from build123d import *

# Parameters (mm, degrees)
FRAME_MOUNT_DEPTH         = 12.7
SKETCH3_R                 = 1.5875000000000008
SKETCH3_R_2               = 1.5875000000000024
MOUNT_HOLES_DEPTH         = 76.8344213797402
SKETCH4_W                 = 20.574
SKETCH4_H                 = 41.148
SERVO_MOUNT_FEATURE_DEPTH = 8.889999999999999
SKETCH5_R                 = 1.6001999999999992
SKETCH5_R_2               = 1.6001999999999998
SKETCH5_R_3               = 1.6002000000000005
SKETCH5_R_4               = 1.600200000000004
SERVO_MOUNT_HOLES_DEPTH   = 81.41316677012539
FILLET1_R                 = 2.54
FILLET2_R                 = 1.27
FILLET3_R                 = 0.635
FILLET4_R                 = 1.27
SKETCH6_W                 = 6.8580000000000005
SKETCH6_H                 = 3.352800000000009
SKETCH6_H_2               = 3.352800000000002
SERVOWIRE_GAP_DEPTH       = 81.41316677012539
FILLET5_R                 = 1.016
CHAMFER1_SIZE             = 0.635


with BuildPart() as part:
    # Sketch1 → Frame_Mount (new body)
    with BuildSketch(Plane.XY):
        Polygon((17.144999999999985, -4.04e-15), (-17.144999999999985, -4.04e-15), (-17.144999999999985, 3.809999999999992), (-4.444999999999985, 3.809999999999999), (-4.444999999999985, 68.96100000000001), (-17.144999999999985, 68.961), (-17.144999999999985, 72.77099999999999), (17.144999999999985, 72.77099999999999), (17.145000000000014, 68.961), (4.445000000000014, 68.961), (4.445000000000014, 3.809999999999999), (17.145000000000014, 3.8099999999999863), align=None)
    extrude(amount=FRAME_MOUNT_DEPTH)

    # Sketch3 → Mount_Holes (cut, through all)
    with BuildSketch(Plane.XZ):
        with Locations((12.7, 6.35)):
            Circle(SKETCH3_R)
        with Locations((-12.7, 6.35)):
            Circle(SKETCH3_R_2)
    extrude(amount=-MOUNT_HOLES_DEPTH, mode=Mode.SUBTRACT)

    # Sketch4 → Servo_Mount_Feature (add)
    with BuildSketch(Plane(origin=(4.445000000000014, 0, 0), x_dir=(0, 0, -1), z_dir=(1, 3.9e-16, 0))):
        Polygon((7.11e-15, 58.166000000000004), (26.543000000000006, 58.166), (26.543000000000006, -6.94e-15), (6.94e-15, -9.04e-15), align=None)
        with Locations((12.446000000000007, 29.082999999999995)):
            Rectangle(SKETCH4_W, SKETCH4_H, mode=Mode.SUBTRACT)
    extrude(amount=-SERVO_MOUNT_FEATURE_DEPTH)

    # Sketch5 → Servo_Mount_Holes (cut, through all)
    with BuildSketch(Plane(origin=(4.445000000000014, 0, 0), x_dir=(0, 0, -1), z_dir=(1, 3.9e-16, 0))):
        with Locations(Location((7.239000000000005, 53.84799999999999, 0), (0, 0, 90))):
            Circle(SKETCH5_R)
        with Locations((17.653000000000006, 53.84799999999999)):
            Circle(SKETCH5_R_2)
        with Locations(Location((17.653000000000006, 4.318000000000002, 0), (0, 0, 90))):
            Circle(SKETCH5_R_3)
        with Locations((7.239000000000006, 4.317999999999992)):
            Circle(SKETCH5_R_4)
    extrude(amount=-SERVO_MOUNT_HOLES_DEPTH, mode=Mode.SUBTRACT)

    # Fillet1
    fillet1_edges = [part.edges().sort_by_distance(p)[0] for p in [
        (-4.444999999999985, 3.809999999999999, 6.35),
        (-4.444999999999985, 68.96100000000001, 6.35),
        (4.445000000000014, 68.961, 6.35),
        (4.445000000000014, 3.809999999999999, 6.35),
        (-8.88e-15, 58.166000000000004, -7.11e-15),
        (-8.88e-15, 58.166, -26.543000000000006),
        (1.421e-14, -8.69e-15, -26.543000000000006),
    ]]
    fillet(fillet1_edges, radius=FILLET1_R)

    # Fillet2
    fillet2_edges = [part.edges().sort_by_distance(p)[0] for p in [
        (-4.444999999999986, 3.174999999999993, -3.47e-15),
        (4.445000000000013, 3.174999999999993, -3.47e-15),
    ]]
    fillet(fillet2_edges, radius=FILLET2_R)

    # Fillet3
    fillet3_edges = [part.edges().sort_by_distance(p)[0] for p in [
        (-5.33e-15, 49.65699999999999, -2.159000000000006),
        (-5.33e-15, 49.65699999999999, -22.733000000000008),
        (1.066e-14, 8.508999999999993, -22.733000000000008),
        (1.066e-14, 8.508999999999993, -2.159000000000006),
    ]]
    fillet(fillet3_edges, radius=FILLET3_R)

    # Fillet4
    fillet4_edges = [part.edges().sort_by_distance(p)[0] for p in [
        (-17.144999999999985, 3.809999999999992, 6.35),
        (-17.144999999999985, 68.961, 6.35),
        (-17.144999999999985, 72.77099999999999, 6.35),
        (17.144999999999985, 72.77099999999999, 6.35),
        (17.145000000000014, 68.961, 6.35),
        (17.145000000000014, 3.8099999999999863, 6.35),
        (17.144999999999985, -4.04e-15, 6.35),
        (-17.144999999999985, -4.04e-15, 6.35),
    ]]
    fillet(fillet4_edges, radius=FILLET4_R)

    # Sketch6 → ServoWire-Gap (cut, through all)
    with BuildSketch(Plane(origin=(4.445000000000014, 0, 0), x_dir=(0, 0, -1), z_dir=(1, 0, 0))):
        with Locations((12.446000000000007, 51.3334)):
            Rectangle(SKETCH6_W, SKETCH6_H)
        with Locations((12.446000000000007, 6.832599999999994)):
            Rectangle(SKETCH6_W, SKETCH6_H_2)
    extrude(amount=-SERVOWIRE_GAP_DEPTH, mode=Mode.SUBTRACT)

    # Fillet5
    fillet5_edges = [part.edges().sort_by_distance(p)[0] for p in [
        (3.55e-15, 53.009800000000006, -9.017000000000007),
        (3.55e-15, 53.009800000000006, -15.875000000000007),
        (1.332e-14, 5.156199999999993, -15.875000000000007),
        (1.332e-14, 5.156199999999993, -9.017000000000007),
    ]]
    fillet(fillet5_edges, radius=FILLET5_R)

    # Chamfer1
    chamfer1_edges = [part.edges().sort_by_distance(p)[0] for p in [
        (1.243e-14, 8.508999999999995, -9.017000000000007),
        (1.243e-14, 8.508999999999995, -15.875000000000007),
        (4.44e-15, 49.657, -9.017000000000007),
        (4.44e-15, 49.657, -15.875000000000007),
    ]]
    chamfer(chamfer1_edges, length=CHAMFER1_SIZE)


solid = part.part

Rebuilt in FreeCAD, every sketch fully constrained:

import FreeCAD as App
import Part
import Sketcher

V = App.Vector
Q = App.Units.Quantity


def edges_at(feature, points):
    """Names of the edges that pass closest to the given points."""
    edges = feature.Shape.Edges
    near = lambda p: min(range(len(edges)), key=lambda i: edges[i].distToShape(Part.Vertex(*p))[0])
    return sorted({f"Edge{near(p) + 1}" for p in points})

doc = App.newDocument("Part")
body = doc.addObject("PartDesign::Body", "Body")

# Sketch on XY plane
sketch1 = doc.addObject("Sketcher::SketchObject", "Sketch")
body.addObject(sketch1)
sketch1.AttachmentSupport = (doc.XY_Plane, [""])
sketch1.MapMode = "FlatFace"
sketch1.addGeometry([
    Part.LineSegment(V(-17.145, 0, 0), V(17.145, 0, 0)),  # 0
    Part.LineSegment(V(17.145, 0, 0), V(17.145, 3.81, 0)),  # 1
    Part.LineSegment(V(17.145, 3.81, 0), V(4.445, 3.81, 0)),  # 2
    Part.LineSegment(V(4.445, 3.81, 0), V(4.445, 68.961, 0)),  # 3
    Part.LineSegment(V(4.445, 68.961, 0), V(17.145, 68.961, 0)),  # 4
    Part.LineSegment(V(17.145, 68.961, 0), V(17.145, 72.771, 0)),  # 5
    Part.LineSegment(V(17.145, 72.771, 0), V(-17.145, 72.771, 0)),  # 6
    Part.LineSegment(V(-17.145, 72.771, 0), V(-17.145, 68.961, 0)),  # 7
    Part.LineSegment(V(-17.145, 68.961, 0), V(-4.445, 68.961, 0)),  # 8
    Part.LineSegment(V(-4.445, 68.961, 0), V(-4.445, 3.81, 0)),  # 9
    Part.LineSegment(V(-4.445, 3.81, 0), V(-17.145, 3.81, 0)),  # 10
    Part.LineSegment(V(-17.145, 3.81, 0), V(-17.145, 0, 0)),  # 11
], False)
sketch1.addConstraint([
    Sketcher.Constraint("Coincident", 0, 2, 1, 1),
    Sketcher.Constraint("Coincident", 1, 2, 2, 1),
    Sketcher.Constraint("Coincident", 2, 2, 3, 1),
    Sketcher.Constraint("Coincident", 3, 2, 4, 1),
    Sketcher.Constraint("Coincident", 4, 2, 5, 1),
    Sketcher.Constraint("Coincident", 5, 2, 6, 1),
    Sketcher.Constraint("Coincident", 6, 2, 7, 1),
    Sketcher.Constraint("Coincident", 7, 2, 8, 1),
    Sketcher.Constraint("Coincident", 8, 2, 9, 1),
    Sketcher.Constraint("Coincident", 9, 2, 10, 1),
    Sketcher.Constraint("Coincident", 10, 2, 11, 1),
    Sketcher.Constraint("Coincident", 11, 2, 0, 1),
    Sketcher.Constraint("Horizontal", 0),
    Sketcher.Constraint("Vertical", 1),
    Sketcher.Constraint("Horizontal", 2),
    Sketcher.Constraint("Vertical", 3),
    Sketcher.Constraint("Horizontal", 4),
    Sketcher.Constraint("Vertical", 5),
    Sketcher.Constraint("Horizontal", 6),
    Sketcher.Constraint("Vertical", 7),
    Sketcher.Constraint("Horizontal", 8),
    Sketcher.Constraint("Vertical", 9),
    Sketcher.Constraint("Horizontal", 10),
    Sketcher.Constraint("Vertical", 11),
    Sketcher.Constraint("Symmetric", 0, 2, 11, 2, -1, 1),
    Sketcher.Constraint("Symmetric", 4, 2, 7, 2, -2),
    Sketcher.Constraint("Symmetric", 2, 2, 9, 2, -2),
    Sketcher.Constraint("Vertical", 1, 2, 4, 2),
    Sketcher.Constraint("Equal", 1, 5),
    Sketcher.Constraint("DistanceX", 2, 2, 2, 1, Q("0.5 in")),
    Sketcher.Constraint("DistanceX", 0, 1, 0, 2, Q("1.35 in")),
    Sketcher.Constraint("DistanceY", 1, 1, 1, 2, Q("0.15 in")),
    Sketcher.Constraint("DistanceY", 3, 1, 3, 2, Q("2.565 in")),
])
pad1 = doc.addObject("PartDesign::Pad", "Pad")
body.addObject(pad1)
pad1.Profile = sketch1
pad1.Length = Q("0.5 in")

# Sketch on XZ plane
sketch2 = doc.addObject("Sketcher::SketchObject", "Sketch001")
body.addObject(sketch2)
sketch2.AttachmentSupport = (doc.XZ_Plane, [""])
sketch2.MapMode = "FlatFace"
sketch2.addGeometry([
    Part.Circle(V(12.7, 6.35, 0), V(0, 0, 1), 1.5875),
    Part.Circle(V(-12.7, 6.35, 0), V(0, 0, 1), 1.5875),
], False)
sketch2.addConstraint([
    Sketcher.Constraint("Equal", 0, 1),
    Sketcher.Constraint("Symmetric", 0, 3, 1, 3, -2),
    Sketcher.Constraint("Diameter", 0, Q("0.125 in")),
    Sketcher.Constraint("DistanceX", 1, 3, 0, 3, Q("1 in")),
    Sketcher.Constraint("DistanceY", -1, 1, 0, 3, Q("0.25 in")),
])
pocket1 = doc.addObject("PartDesign::Pocket", "Pocket")
body.addObject(pocket1)
pocket1.Profile = sketch2
pocket1.Type = "ThroughAll"

# Sketch on YZ plane
sketch3 = doc.addObject("Sketcher::SketchObject", "Sketch002")
body.addObject(sketch3)
sketch3.AttachmentSupport = (doc.YZ_Plane, [""])
sketch3.MapMode = "FlatFace"
sketch3.AttachmentOffset = App.Placement(V(0, 0, 0.175 * 25.4), App.Rotation())
sketch3.addGeometry([
    Part.LineSegment(V(58.166, -26.543, 0), V(58.166, 0, 0)),  # 0
    Part.LineSegment(V(58.166, 0, 0), V(0, 0, 0)),  # 1
    Part.LineSegment(V(0, 0, 0), V(0, -26.543, 0)),  # 2
    Part.LineSegment(V(0, -26.543, 0), V(58.166, -26.543, 0)),  # 3
    Part.LineSegment(V(8.509, -2.159, 0), V(49.657, -2.159, 0)),  # 4
    Part.LineSegment(V(49.657, -2.159, 0), V(49.657, -22.733, 0)),  # 5
    Part.LineSegment(V(49.657, -22.733, 0), V(8.509, -22.733, 0)),  # 6
    Part.LineSegment(V(8.509, -22.733, 0), V(8.509, -2.159, 0)),  # 7
], False)
sketch3.addConstraint([
    Sketcher.Constraint("Coincident", 0, 2, 1, 1),
    Sketcher.Constraint("Coincident", 1, 2, 2, 1),
    Sketcher.Constraint("Coincident", 2, 2, 3, 1),
    Sketcher.Constraint("Coincident", 3, 2, 0, 1),
    Sketcher.Constraint("Coincident", 4, 2, 5, 1),
    Sketcher.Constraint("Coincident", 5, 2, 6, 1),
    Sketcher.Constraint("Coincident", 6, 2, 7, 1),
    Sketcher.Constraint("Coincident", 7, 2, 4, 1),
    Sketcher.Constraint("Vertical", 0),
    Sketcher.Constraint("Horizontal", 1),
    Sketcher.Constraint("Vertical", 2),
    Sketcher.Constraint("Horizontal", 3),
    Sketcher.Constraint("Horizontal", 4),
    Sketcher.Constraint("Vertical", 5),
    Sketcher.Constraint("Horizontal", 6),
    Sketcher.Constraint("Vertical", 7),
    Sketcher.Constraint("Coincident", 1, 2, -1, 1),
    Sketcher.Constraint("DistanceX", 1, 2, 1, 1, Q("2.29 in")),
    Sketcher.Constraint("DistanceX", 4, 1, 4, 2, Q("1.62 in")),
    Sketcher.Constraint("DistanceY", 5, 2, 5, 1, Q("0.81 in")),
    Sketcher.Constraint("DistanceY", 0, 1, 0, 2, Q("1.045 in")),
    Sketcher.Constraint("DistanceY", 3, 2, 4, 2, Q("0.96 in")),
    Sketcher.Constraint("DistanceX", -1, 1, 4, 2, Q("1.955 in")),
])
pad2 = doc.addObject("PartDesign::Pad", "Pad001")
body.addObject(pad2)
pad2.Profile = sketch3
pad2.Length = Q("0.35 in")
pad2.Reversed = True

# Sketch on YZ plane
sketch4 = doc.addObject("Sketcher::SketchObject", "Sketch003")
body.addObject(sketch4)
sketch4.AttachmentSupport = (doc.YZ_Plane, [""])
sketch4.MapMode = "FlatFace"
sketch4.AttachmentOffset = App.Placement(V(0, 0, 0.175 * 25.4), App.Rotation())
sketch4.addGeometry([
    Part.Circle(V(53.848, -7.239, 0), V(0, 0, 1), 1.6002),
    Part.Circle(V(53.848, -17.653, 0), V(0, 0, 1), 1.6002),
    Part.Circle(V(4.318, -17.653, 0), V(0, 0, 1), 1.6002),
    Part.Circle(V(4.318, -7.239, 0), V(0, 0, 1), 1.6002),
], False)
sketch4.addConstraint([
    Sketcher.Constraint("Equal", 0, 1),
    Sketcher.Constraint("Equal", 1, 2),
    Sketcher.Constraint("Equal", 2, 3),
    Sketcher.Constraint("Horizontal", 1, 3, 2, 3),
    Sketcher.Constraint("Horizontal", 0, 3, 3, 3),
    Sketcher.Constraint("Vertical", 0, 3, 1, 3),
    Sketcher.Constraint("Vertical", 2, 3, 3, 3),
    Sketcher.Constraint("Diameter", 0, Q("0.126 in")),
    Sketcher.Constraint("DistanceX", -1, 1, 0, 3, Q("2.12 in")),
    Sketcher.Constraint("DistanceX", -1, 1, 2, 3, Q("0.17 in")),
    Sketcher.Constraint("DistanceY", 1, 3, 0, 3, Q("0.41 in")),
    Sketcher.Constraint("DistanceY", 0, 3, -1, 1, Q("0.285 in")),
])
pocket2 = doc.addObject("PartDesign::Pocket", "Pocket001")
body.addObject(pocket2)
pocket2.Profile = sketch4
pocket2.Type = "ThroughAll"
doc.recompute()

fillet = doc.addObject("PartDesign::Fillet", "Fillet")
body.addObject(fillet)
fillet.Base = (pocket2, edges_at(pocket2, [
    (-4.445, 3.81, 6.35),
    (-4.445, 68.961, 6.35),
    (4.445, 68.961, 6.35),
    (4.445, 3.81, 6.35),
    (0, 58.166, 0),
    (0, 58.166, -26.543),
    (0, 0, -26.543),
]))
fillet.Radius = Q("0.1 in")
doc.recompute()

fillet2 = doc.addObject("PartDesign::Fillet", "Fillet001")
body.addObject(fillet2)
fillet2.Base = (fillet, edges_at(fillet, [(-4.445, 3.175, 0), (4.445, 3.175, 0)]))
fillet2.Radius = Q("0.05 in")
doc.recompute()

fillet3 = doc.addObject("PartDesign::Fillet", "Fillet002")
body.addObject(fillet3)
fillet3.Base = (fillet2, edges_at(fillet2, [
    (0, 49.657, -2.159),
    (0, 49.657, -22.733),
    (0, 8.509, -22.733),
    (0, 8.509, -2.159),
]))
fillet3.Radius = Q("0.025 in")
doc.recompute()

fillet4 = doc.addObject("PartDesign::Fillet", "Fillet003")
body.addObject(fillet4)
fillet4.Base = (fillet3, edges_at(fillet3, [
    (-17.145, 3.81, 6.35),
    (-17.145, 68.961, 6.35),
    (-17.145, 72.771, 6.35),
    (17.145, 72.771, 6.35),
    (17.145, 68.961, 6.35),
    (17.145, 3.81, 6.35),
    (17.145, 0, 6.35),
    (-17.145, 0, 6.35),
]))
fillet4.Radius = Q("0.05 in")

# Sketch on YZ plane
sketch5 = doc.addObject("Sketcher::SketchObject", "Sketch004")
body.addObject(sketch5)
sketch5.AttachmentSupport = (doc.YZ_Plane, [""])
sketch5.MapMode = "FlatFace"
sketch5.AttachmentOffset = App.Placement(V(0, 0, 0.175 * 25.4), App.Rotation())
sketch5.addGeometry([
    Part.LineSegment(V(53.0098, -9.017, 0), V(49.657, -9.017, 0)),  # 0
    Part.LineSegment(V(49.657, -9.017, 0), V(49.657, -15.875, 0)),  # 1
    Part.LineSegment(V(49.657, -15.875, 0), V(53.0098, -15.875, 0)),  # 2
    Part.LineSegment(V(53.0098, -15.875, 0), V(53.0098, -9.017, 0)),  # 3
    Part.LineSegment(V(8.509, -9.017, 0), V(5.1562, -9.017, 0)),  # 4
    Part.LineSegment(V(5.1562, -9.017, 0), V(5.1562, -15.875, 0)),  # 5
    Part.LineSegment(V(5.1562, -15.875, 0), V(8.509, -15.875, 0)),  # 6
    Part.LineSegment(V(8.509, -15.875, 0), V(8.509, -9.017, 0)),  # 7
], False)
sketch5.addConstraint([
    Sketcher.Constraint("Coincident", 0, 2, 1, 1),
    Sketcher.Constraint("Coincident", 1, 2, 2, 1),
    Sketcher.Constraint("Coincident", 2, 2, 3, 1),
    Sketcher.Constraint("Coincident", 3, 2, 0, 1),
    Sketcher.Constraint("Coincident", 4, 2, 5, 1),
    Sketcher.Constraint("Coincident", 5, 2, 6, 1),
    Sketcher.Constraint("Coincident", 6, 2, 7, 1),
    Sketcher.Constraint("Coincident", 7, 2, 4, 1),
    Sketcher.Constraint("Horizontal", 0),
    Sketcher.Constraint("Vertical", 1),
    Sketcher.Constraint("Horizontal", 2),
    Sketcher.Constraint("Vertical", 3),
    Sketcher.Constraint("Horizontal", 4),
    Sketcher.Constraint("Vertical", 5),
    Sketcher.Constraint("Horizontal", 6),
    Sketcher.Constraint("Vertical", 7),
    Sketcher.Constraint("Horizontal", 3, 2, 4, 2),
    Sketcher.Constraint("Horizontal", 2, 2, 5, 2),
    Sketcher.Constraint("Equal", 2, 4),
    Sketcher.Constraint("DistanceY", 1, 2, 1, 1, Q("0.27 in")),
    Sketcher.Constraint("DistanceX", 0, 2, 0, 1, Q("0.132 in")),
    Sketcher.Constraint("DistanceX", 6, 2, 1, 2, Q("1.62 in")),
    Sketcher.Constraint("DistanceX", -1, 1, 0, 2, Q("1.955 in")),
    Sketcher.Constraint("DistanceY", 0, 2, -1, 1, Q("0.355 in")),
])
pocket3 = doc.addObject("PartDesign::Pocket", "Pocket002")
body.addObject(pocket3)
pocket3.Profile = sketch5
pocket3.Type = "ThroughAll"
doc.recompute()

fillet5 = doc.addObject("PartDesign::Fillet", "Fillet004")
body.addObject(fillet5)
fillet5.Base = (pocket3, edges_at(pocket3, [
    (0, 53.01, -9.017),
    (0, 53.01, -15.875),
    (0, 5.156, -15.875),
    (0, 5.156, -9.017),
]))
fillet5.Radius = Q("0.04 in")
doc.recompute()

chamfer = doc.addObject("PartDesign::Chamfer", "Chamfer")
body.addObject(chamfer)
chamfer.Base = (fillet5, edges_at(fillet5, [
    (0, 8.509, -9.017),
    (0, 8.509, -15.875),
    (0, 49.657, -9.017),
    (0, 49.657, -15.875),
]))
chamfer.Size = Q("0.025 in")

doc.recompute()
